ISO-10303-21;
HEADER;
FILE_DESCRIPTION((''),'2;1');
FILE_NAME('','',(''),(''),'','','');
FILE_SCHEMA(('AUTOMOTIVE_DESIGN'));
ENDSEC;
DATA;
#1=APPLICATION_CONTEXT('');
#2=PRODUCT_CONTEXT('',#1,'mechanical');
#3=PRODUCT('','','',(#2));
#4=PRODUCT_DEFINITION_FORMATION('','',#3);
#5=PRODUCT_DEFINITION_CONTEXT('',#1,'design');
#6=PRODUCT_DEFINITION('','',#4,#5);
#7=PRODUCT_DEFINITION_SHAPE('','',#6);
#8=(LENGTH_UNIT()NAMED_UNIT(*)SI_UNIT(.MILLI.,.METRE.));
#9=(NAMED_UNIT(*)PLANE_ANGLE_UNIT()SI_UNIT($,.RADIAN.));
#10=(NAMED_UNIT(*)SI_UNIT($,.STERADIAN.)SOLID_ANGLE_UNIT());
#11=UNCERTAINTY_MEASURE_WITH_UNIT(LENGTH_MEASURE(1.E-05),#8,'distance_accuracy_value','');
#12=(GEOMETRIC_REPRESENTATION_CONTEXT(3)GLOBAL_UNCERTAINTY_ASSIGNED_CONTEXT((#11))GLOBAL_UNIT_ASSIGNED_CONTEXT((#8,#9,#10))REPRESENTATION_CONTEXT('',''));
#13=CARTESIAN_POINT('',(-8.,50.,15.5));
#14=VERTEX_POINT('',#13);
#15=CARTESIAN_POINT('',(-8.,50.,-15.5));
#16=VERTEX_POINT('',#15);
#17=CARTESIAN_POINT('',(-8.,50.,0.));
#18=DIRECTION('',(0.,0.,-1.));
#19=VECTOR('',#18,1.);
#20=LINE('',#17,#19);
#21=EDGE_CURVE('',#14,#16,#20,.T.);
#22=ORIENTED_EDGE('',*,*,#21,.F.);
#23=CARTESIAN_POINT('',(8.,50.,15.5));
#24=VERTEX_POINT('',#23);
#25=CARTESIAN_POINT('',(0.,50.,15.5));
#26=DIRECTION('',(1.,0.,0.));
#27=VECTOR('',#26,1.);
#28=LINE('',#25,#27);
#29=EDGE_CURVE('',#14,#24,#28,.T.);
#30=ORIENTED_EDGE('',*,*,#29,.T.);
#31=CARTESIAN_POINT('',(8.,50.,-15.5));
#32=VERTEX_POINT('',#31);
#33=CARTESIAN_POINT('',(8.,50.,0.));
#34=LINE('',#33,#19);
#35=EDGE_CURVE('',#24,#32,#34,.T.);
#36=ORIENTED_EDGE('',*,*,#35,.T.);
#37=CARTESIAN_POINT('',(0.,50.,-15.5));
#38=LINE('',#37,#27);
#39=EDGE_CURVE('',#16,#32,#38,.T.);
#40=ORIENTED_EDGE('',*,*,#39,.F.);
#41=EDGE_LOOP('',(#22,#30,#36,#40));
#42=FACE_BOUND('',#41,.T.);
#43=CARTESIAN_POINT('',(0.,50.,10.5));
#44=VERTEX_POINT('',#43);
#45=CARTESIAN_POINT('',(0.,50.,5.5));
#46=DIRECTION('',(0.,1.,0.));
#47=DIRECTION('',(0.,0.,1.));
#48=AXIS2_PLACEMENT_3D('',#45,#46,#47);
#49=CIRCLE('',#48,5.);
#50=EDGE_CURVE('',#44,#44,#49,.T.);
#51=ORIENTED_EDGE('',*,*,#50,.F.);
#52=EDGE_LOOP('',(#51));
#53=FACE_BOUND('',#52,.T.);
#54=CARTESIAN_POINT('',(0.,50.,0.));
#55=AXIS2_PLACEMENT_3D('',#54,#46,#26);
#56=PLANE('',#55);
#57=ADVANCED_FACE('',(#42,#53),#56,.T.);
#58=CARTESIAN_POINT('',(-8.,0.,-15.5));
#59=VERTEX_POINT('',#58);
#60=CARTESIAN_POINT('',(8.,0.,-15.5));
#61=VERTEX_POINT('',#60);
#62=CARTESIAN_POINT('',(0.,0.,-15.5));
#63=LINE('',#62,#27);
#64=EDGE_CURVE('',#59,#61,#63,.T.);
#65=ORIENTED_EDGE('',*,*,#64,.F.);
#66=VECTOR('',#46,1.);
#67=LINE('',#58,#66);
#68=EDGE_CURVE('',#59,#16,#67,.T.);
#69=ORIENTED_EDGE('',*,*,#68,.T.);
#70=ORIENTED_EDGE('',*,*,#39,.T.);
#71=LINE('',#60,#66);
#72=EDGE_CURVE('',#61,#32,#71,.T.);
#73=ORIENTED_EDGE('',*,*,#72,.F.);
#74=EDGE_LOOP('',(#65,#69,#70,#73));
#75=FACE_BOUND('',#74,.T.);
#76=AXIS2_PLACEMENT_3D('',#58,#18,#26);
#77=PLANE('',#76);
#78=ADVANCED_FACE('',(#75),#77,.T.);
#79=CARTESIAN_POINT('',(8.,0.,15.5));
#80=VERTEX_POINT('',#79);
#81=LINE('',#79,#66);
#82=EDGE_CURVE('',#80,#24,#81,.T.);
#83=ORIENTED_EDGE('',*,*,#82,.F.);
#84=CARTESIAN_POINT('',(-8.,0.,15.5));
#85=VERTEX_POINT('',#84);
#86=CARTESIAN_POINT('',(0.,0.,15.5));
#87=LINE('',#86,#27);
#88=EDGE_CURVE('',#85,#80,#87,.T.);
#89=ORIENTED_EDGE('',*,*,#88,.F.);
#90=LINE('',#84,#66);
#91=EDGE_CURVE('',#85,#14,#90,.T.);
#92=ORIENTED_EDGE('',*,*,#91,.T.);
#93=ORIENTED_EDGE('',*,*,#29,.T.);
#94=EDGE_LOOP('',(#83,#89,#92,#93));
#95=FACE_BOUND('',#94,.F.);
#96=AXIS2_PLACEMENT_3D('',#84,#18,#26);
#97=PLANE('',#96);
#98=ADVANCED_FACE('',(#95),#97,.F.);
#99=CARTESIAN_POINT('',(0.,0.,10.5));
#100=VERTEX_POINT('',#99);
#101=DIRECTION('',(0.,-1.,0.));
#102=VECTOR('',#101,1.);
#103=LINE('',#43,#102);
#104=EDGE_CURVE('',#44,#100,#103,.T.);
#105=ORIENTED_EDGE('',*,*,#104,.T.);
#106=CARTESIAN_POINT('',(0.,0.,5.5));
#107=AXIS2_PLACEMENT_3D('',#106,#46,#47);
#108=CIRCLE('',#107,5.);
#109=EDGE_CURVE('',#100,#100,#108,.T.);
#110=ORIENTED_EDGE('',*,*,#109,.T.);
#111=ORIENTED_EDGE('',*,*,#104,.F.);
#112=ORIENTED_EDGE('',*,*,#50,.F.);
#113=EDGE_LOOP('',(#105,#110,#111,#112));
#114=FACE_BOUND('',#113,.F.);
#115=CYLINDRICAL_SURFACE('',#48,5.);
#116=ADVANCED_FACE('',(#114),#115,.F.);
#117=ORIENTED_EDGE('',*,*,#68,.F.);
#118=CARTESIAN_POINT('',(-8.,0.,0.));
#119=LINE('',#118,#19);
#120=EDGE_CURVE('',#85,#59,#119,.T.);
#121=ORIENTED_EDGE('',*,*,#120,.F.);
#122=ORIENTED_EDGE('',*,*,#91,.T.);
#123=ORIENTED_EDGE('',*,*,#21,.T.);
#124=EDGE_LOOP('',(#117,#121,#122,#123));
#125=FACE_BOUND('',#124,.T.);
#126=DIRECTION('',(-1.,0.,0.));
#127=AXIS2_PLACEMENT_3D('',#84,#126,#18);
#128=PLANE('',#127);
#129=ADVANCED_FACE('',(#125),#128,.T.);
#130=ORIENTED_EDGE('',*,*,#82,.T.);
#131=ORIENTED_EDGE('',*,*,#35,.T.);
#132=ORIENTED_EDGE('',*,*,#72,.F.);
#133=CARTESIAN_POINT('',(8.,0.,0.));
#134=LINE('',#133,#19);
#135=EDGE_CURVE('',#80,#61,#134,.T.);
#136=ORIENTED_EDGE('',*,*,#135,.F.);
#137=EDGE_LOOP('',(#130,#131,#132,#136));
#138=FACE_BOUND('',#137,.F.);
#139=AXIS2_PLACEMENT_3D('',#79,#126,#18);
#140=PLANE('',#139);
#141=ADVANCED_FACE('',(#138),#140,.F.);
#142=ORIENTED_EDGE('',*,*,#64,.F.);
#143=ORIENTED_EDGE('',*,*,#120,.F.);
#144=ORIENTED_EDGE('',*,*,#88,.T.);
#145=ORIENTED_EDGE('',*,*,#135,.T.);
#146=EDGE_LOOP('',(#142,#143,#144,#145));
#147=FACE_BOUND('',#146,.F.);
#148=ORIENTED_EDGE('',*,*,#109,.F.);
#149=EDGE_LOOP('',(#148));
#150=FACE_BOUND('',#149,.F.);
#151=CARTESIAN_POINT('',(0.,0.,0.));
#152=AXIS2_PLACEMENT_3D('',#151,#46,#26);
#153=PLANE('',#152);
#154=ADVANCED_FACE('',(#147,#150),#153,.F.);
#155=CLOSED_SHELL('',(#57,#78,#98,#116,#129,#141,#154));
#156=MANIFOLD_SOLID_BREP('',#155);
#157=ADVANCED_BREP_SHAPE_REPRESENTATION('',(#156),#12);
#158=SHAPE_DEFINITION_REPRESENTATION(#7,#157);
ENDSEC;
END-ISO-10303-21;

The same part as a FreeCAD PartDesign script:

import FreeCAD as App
import Part
import Sketcher

V = App.Vector
Q = App.Units.Quantity


def add_polygon(sketch, points):
    """Adds a closed chain of lines whose ends are joined by coincident constraints."""
    first, n = sketch.GeometryCount, len(points)
    for a, b in zip(points, points[1:] + points[:1]):
        sketch.addGeometry(Part.LineSegment(App.Vector(*a, 0), App.Vector(*b, 0)), False)
    for i in range(n):
        sketch.addConstraint(Sketcher.Constraint("Coincident", first + i, 2, first + (i + 1) % n, 1))

doc = App.newDocument("Part")
body = doc.addObject("PartDesign::Body", "Body")

# Sketch on XZ plane
sketch1 = body.newObject("Sketcher::SketchObject", "Sketch")
sketch1.AttachmentSupport = (doc.getObject("XZ_Plane"), [""])
sketch1.MapMode = "FlatFace"
add_polygon(sketch1, [(-8, -16), (-8, 16), (8, 16), (8, -16)])  # lines 0-3
sketch1.addConstraint(Sketcher.Constraint("Vertical", 0))
sketch1.addConstraint(Sketcher.Constraint("Horizontal", 1))
sketch1.addConstraint(Sketcher.Constraint("Vertical", 2))
sketch1.addConstraint(Sketcher.Constraint("Horizontal", 3))
sketch1.addConstraint(Sketcher.Constraint("Symmetric", 0, 2, 2, 2, -1, 1))
sketch1.addConstraint(Sketcher.Constraint("DistanceX", 1, 1, 1, 2, Q("16 mm")))
sketch1.addConstraint(Sketcher.Constraint("DistanceY", 0, 1, 0, 2, Q("31 mm")))
pad1 = body.newObject("PartDesign::Pad", "Pad")
pad1.Profile = sketch1
pad1.Length = 50
pad1.Reversed = True

# Sketch on XZ plane
sketch2 = body.newObject("Sketcher::SketchObject", "Sketch001")
sketch2.AttachmentSupport = (doc.getObject("XZ_Plane"), [""])
sketch2.MapMode = "FlatFace"
sketch2.AttachmentOffset = App.Placement(V(0, 0, -50), App.Rotation())
sketch2.addGeometry(Part.Circle(V(0, 6, 0), V(0, 0, 1), 5), False)
sketch2.addConstraint(Sketcher.Constraint("PointOnObject", 0, 3, -2))
sketch2.addConstraint(Sketcher.Constraint("Diameter", 0, Q("10 mm")))
sketch2.addConstraint(Sketcher.Constraint("DistanceY", -1, 1, 0, 3, Q("5.5 mm")))
pocket1 = body.newObject("PartDesign::Pocket", "Pocket")
pocket1.Profile = sketch2
pocket1.Type = "ThroughAll"
pocket1.Reversed = True

doc.recompute()
